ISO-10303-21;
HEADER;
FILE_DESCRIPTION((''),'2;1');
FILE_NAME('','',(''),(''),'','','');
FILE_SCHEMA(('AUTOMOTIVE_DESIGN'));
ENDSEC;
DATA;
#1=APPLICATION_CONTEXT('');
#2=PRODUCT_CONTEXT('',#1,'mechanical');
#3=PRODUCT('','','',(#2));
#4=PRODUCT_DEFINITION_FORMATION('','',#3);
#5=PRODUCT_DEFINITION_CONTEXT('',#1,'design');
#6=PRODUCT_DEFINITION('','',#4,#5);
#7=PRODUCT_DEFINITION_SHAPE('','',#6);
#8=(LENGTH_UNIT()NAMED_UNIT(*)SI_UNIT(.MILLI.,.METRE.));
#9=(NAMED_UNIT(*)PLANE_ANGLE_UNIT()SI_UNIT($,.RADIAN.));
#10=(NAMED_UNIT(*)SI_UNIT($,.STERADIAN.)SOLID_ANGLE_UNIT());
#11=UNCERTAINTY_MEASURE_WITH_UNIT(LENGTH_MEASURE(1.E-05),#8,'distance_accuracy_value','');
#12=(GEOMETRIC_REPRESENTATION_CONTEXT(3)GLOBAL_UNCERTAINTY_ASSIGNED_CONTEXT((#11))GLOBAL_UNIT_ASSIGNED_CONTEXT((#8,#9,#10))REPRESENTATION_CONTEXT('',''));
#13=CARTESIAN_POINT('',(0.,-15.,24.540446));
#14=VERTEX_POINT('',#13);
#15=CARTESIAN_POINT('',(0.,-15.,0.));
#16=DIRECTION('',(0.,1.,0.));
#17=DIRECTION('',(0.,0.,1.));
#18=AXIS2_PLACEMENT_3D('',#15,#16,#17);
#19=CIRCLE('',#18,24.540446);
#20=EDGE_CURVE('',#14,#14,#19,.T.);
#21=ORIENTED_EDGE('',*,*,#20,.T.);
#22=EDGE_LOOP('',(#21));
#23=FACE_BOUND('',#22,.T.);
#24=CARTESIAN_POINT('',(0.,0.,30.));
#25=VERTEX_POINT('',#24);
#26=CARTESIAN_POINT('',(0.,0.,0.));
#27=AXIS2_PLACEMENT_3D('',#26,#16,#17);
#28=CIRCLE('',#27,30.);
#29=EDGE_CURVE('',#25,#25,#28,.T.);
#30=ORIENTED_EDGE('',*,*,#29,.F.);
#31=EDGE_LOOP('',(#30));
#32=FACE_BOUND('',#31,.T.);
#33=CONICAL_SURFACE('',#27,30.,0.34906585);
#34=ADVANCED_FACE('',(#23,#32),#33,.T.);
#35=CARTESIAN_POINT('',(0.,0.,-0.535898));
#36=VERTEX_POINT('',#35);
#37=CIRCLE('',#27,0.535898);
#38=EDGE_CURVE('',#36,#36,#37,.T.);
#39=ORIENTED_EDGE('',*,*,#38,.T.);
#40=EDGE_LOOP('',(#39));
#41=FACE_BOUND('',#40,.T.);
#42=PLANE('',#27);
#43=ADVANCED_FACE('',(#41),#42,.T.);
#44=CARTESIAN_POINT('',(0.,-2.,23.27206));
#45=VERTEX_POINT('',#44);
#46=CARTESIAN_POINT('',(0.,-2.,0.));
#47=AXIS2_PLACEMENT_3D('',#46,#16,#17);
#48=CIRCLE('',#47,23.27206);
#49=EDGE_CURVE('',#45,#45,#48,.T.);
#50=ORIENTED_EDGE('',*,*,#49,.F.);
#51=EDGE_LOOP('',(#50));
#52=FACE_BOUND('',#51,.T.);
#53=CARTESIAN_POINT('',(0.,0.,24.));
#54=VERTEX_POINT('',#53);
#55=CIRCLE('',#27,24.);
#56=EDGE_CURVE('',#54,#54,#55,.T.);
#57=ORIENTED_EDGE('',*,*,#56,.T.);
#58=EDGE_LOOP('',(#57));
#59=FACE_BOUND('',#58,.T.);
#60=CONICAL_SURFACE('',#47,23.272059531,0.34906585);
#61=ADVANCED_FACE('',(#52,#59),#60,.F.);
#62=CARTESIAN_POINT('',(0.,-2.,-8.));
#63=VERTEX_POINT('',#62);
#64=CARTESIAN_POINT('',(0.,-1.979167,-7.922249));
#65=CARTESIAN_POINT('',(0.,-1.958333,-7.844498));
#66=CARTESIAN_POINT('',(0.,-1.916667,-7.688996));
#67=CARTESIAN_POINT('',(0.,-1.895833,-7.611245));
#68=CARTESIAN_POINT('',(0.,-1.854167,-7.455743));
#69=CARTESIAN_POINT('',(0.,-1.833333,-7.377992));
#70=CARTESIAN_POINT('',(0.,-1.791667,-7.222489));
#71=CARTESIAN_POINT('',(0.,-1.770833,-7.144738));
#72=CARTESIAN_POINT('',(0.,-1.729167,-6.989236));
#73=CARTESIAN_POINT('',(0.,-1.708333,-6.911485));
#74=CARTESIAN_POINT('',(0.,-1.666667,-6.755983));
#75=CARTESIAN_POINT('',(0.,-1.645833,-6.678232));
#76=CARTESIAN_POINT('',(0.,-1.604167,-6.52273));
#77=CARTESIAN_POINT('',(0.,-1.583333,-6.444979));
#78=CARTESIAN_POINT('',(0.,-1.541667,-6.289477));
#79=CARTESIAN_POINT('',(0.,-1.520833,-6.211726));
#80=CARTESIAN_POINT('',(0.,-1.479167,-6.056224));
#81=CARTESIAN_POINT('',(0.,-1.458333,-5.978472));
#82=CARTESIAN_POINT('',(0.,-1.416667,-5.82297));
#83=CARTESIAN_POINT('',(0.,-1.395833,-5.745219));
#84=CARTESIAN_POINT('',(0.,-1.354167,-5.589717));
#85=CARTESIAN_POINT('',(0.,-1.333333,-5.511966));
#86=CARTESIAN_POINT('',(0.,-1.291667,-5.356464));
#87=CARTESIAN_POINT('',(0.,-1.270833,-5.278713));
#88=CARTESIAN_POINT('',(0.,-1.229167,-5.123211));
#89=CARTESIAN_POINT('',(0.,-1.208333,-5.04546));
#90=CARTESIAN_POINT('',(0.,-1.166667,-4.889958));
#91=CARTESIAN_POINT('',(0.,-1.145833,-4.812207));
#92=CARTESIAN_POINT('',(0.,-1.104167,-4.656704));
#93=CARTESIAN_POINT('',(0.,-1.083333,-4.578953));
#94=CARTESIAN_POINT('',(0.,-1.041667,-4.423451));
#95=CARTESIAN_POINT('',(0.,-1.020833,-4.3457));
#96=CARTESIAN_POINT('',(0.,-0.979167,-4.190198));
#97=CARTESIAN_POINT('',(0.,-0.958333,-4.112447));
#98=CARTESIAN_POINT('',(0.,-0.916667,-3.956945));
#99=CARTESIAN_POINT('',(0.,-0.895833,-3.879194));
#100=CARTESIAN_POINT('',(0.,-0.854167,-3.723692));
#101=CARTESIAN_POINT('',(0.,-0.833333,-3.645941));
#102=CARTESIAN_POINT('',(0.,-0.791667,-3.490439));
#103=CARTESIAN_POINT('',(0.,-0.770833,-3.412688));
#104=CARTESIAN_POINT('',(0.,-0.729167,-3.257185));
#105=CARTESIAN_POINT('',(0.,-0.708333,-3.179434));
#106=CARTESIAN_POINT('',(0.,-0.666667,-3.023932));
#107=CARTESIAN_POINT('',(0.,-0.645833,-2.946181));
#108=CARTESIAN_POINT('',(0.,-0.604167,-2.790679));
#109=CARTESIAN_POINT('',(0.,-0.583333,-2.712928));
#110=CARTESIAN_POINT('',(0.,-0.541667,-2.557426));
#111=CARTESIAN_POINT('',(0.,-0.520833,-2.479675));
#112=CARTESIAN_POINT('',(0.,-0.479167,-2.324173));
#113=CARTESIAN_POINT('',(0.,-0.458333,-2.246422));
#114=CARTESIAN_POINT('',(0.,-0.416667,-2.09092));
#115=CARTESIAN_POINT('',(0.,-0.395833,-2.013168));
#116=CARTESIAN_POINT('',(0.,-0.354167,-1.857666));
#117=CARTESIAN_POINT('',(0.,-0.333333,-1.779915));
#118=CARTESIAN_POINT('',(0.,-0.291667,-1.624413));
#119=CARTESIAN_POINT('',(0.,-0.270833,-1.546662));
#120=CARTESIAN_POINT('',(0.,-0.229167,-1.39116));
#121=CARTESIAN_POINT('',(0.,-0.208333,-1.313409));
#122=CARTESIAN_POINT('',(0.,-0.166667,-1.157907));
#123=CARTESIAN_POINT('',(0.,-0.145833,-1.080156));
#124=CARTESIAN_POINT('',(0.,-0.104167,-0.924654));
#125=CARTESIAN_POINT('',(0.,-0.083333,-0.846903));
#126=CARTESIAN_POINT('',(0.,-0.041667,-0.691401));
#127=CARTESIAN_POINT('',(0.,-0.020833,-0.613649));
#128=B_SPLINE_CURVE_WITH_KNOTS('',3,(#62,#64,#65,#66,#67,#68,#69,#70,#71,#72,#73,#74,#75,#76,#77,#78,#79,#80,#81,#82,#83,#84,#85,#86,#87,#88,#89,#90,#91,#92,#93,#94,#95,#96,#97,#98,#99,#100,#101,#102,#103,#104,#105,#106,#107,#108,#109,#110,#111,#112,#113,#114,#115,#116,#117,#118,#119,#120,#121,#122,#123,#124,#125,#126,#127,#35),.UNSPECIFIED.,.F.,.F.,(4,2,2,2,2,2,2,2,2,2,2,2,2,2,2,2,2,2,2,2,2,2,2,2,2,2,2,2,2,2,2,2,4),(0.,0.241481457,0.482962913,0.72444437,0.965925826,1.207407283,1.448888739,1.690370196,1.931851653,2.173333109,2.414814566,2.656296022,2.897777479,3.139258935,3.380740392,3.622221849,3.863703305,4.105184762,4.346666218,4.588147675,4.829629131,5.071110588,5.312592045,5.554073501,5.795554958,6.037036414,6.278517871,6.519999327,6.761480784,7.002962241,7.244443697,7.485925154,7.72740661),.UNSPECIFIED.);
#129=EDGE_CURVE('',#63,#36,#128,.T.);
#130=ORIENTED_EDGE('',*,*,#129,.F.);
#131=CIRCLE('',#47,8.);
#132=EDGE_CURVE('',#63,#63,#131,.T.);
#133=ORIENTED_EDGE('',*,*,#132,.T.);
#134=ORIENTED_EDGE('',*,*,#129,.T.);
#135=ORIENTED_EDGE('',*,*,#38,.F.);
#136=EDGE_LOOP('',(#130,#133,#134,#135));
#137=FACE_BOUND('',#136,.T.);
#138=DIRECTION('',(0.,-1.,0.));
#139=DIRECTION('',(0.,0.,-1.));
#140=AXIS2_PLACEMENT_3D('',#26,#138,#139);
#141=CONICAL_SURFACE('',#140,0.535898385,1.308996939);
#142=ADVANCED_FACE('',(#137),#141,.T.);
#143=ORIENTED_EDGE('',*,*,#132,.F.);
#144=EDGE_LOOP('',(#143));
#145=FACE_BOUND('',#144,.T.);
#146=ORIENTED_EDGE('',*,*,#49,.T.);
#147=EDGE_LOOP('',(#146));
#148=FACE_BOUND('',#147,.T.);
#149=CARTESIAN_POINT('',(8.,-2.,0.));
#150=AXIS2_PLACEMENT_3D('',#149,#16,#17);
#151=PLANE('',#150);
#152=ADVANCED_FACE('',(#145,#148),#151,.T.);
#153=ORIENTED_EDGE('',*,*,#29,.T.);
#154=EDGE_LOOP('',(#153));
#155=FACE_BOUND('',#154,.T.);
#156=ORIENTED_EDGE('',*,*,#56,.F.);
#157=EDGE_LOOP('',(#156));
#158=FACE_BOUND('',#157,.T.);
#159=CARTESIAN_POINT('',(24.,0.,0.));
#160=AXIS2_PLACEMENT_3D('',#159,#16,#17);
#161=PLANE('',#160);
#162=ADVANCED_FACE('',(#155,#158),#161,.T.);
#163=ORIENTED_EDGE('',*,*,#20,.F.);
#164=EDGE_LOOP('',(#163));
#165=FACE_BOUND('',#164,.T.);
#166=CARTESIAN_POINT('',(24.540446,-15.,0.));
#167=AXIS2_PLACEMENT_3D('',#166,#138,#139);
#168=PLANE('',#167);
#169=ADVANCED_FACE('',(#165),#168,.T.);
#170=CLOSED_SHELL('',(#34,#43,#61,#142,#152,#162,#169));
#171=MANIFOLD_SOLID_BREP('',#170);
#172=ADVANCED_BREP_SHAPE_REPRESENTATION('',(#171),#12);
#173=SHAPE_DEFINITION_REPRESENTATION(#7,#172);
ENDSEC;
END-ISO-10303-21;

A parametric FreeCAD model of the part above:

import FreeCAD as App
import Part
import Sketcher
from FreeCAD import Vector
Q = App.Units.Quantity


def add_polygon(sketch, points):
    """Adds a closed chain of lines whose ends are joined by coincident constraints."""
    first, n = sketch.GeometryCount, len(points)
    for a, b in zip(points, points[1:] + points[:1]):
        sketch.addGeometry(Part.LineSegment(App.Vector(*a, 0), App.Vector(*b, 0)), False)
    for i in range(n):
        sketch.addConstraint(Sketcher.Constraint("Coincident", first + i, 2, first + (i + 1) % n, 1))

doc = App.newDocument("Part")
body = doc.addObject("PartDesign::Body", "Body")

# Sketch on XY plane
sketch1 = doc.addObject("Sketcher::SketchObject", "Sketch")
body.addObject(sketch1)
sketch1.AttachmentSupport = (doc.XY_Plane, [""])
sketch1.MapMode = "FlatFace"
add_polygon(sketch1, [(24.5, -15), (0, -15), (0, 0), (0.5, 0), (8, -2), (23.3, -2), (24, 0), (30, 0)])  # lines 0-7
sketch1.addConstraint([
    Sketcher.Constraint("Horizontal", 0),
    Sketcher.Constraint("Vertical", 1),
    Sketcher.Constraint("Horizontal", 2),
    Sketcher.Constraint("Horizontal", 4),
    Sketcher.Constraint("Horizontal", 6),
    Sketcher.Constraint("Coincident", 1, 2, -1, 1),
    Sketcher.Constraint("PointOnObject", 5, 2, -1),
    Sketcher.Constraint("Parallel", 5, 7),
    Sketcher.Constraint("DistanceX", 6, 1, 6, 2, 6.0),
    Sketcher.Constraint("DistanceY", 1, 1, 1, 2, 15.0),
    Sketcher.Constraint("Angle", 3, Q("-15 deg")),
    Sketcher.Constraint("Angle", 5, Q("70 deg")),
    Sketcher.Constraint("DistanceX", -1, 1, 3, 2, 8.0),
    Sketcher.Constraint("DistanceY", 3, 2, -1, 1, 2.0),
    Sketcher.Constraint("DistanceX", -1, 1, 5, 2, 24.0),
])
revolution = doc.addObject("PartDesign::Revolution", "Revolution")
body.addObject(revolution)
revolution.Profile = sketch1
revolution.ReferenceAxis = (sketch1, ["V_Axis"])
revolution.Angle = 360

doc.recompute()
